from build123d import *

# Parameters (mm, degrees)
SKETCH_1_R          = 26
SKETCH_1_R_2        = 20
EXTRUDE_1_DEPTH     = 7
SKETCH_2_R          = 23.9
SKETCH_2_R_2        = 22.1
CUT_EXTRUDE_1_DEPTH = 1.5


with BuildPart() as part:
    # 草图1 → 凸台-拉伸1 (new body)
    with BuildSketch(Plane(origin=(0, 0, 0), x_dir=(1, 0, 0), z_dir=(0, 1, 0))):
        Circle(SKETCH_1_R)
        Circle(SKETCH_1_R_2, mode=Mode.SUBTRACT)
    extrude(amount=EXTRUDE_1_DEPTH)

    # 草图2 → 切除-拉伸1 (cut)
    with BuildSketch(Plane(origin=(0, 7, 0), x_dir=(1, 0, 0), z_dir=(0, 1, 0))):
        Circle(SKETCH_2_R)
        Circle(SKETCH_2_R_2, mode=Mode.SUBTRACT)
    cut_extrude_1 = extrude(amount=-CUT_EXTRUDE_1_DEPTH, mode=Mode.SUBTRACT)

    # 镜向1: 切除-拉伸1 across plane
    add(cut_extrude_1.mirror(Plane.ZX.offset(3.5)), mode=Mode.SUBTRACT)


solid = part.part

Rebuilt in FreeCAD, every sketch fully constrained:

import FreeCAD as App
import Part
import Sketcher

V = App.Vector

doc = App.newDocument("Part")
params = doc.addObject("Spreadsheet::Sheet", "Params")
for row, (alias, value) in enumerate([
    ("sketch1_diameter", "52 mm"),
    ("sketch1_diameter2", "40 mm"),
    ("pad1_length", "7 mm"),
    ("sketch2_diameter", "47.8 mm"),
    ("sketch2_diameter2", "44.2 mm"),
    ("pocket1_length", "1.5 mm"),
], start=1):
    params.set(f"A{row}", alias)
    params.set(f"B{row}", "=" + value)
    params.setAlias(f"B{row}", alias)

body = doc.addObject("PartDesign::Body", "Body")

sketch1 = body.newObject("Sketcher::SketchObject", "Sketch")
sketch1.AttachmentSupport = (doc.getObject("XZ_Plane"), [""])
sketch1.MapMode = "FlatFace"
sketch1.addGeometry(Part.Circle(V(0, 0, 0), V(0, 0, 1), 26), False)
sketch1.addGeometry(Part.Circle(V(0, 0, 0), V(0, 0, 1), 20), False)
sketch1.addConstraint(Sketcher.Constraint("Coincident", 0, 3, -1, 1))
sketch1.addConstraint(Sketcher.Constraint("Coincident", 1, 3, -1, 1))
sketch1.addConstraint(Sketcher.Constraint("Diameter", 0, 52.0))
sketch1.addConstraint(Sketcher.Constraint("Diameter", 1, 40.0))
sketch1.setExpression("Constraints[2]", "Params.sketch1_diameter")
sketch1.setExpression("Constraints[3]", "Params.sketch1_diameter2")
pad1 = body.newObject("PartDesign::Pad", "Pad")
pad1.Profile = sketch1
pad1.setExpression("Length", "Params.pad1_length")
pad1.Reversed = True

sketch2 = body.newObject("Sketcher::SketchObject", "Sketch001")
sketch2.AttachmentSupport = (doc.getObject("XZ_Plane"), [""])
sketch2.MapMode = "FlatFace"
sketch2.AttachmentOffset = App.Placement(V(0, 0, -7), App.Rotation())
sketch2.addGeometry(Part.Circle(V(0, 0, 0), V(0, 0, 1), 23.9), False)
sketch2.addGeometry(Part.Circle(V(0, 0, 0), V(0, 0, 1), 22.1), False)
sketch2.addConstraint(Sketcher.Constraint("Coincident", 0, 3, -1, 1))
sketch2.addConstraint(Sketcher.Constraint("Coincident", 1, 3, -1, 1))
sketch2.addConstraint(Sketcher.Constraint("Diameter", 0, 47.8))
sketch2.addConstraint(Sketcher.Constraint("Diameter", 1, 44.2))
sketch2.setExpression("Constraints[2]", "Params.sketch2_diameter")
sketch2.setExpression("Constraints[3]", "Params.sketch2_diameter2")
pocket1 = body.newObject("PartDesign::Pocket", "Pocket")
pocket1.Profile = sketch2
pocket1.setExpression("Length", "Params.pocket1_length")
pocket1.Reversed = True
doc.recompute()

datumplane = body.newObject("PartDesign::Plane", "DatumPlane")
datumplane.AttachmentSupport = (doc.getObject("XZ_Plane"), [""])
datumplane.MapMode = "FlatFace"
datumplane.AttachmentOffset = App.Placement(V(0, 0, -3.5), App.Rotation())
mirrored = body.newObject("PartDesign::Mirrored", "Mirrored")
mirrored.Originals = [pocket1]
mirrored.MirrorPlane = (datumplane, [""])
body.Tip = mirrored

doc.recompute()
